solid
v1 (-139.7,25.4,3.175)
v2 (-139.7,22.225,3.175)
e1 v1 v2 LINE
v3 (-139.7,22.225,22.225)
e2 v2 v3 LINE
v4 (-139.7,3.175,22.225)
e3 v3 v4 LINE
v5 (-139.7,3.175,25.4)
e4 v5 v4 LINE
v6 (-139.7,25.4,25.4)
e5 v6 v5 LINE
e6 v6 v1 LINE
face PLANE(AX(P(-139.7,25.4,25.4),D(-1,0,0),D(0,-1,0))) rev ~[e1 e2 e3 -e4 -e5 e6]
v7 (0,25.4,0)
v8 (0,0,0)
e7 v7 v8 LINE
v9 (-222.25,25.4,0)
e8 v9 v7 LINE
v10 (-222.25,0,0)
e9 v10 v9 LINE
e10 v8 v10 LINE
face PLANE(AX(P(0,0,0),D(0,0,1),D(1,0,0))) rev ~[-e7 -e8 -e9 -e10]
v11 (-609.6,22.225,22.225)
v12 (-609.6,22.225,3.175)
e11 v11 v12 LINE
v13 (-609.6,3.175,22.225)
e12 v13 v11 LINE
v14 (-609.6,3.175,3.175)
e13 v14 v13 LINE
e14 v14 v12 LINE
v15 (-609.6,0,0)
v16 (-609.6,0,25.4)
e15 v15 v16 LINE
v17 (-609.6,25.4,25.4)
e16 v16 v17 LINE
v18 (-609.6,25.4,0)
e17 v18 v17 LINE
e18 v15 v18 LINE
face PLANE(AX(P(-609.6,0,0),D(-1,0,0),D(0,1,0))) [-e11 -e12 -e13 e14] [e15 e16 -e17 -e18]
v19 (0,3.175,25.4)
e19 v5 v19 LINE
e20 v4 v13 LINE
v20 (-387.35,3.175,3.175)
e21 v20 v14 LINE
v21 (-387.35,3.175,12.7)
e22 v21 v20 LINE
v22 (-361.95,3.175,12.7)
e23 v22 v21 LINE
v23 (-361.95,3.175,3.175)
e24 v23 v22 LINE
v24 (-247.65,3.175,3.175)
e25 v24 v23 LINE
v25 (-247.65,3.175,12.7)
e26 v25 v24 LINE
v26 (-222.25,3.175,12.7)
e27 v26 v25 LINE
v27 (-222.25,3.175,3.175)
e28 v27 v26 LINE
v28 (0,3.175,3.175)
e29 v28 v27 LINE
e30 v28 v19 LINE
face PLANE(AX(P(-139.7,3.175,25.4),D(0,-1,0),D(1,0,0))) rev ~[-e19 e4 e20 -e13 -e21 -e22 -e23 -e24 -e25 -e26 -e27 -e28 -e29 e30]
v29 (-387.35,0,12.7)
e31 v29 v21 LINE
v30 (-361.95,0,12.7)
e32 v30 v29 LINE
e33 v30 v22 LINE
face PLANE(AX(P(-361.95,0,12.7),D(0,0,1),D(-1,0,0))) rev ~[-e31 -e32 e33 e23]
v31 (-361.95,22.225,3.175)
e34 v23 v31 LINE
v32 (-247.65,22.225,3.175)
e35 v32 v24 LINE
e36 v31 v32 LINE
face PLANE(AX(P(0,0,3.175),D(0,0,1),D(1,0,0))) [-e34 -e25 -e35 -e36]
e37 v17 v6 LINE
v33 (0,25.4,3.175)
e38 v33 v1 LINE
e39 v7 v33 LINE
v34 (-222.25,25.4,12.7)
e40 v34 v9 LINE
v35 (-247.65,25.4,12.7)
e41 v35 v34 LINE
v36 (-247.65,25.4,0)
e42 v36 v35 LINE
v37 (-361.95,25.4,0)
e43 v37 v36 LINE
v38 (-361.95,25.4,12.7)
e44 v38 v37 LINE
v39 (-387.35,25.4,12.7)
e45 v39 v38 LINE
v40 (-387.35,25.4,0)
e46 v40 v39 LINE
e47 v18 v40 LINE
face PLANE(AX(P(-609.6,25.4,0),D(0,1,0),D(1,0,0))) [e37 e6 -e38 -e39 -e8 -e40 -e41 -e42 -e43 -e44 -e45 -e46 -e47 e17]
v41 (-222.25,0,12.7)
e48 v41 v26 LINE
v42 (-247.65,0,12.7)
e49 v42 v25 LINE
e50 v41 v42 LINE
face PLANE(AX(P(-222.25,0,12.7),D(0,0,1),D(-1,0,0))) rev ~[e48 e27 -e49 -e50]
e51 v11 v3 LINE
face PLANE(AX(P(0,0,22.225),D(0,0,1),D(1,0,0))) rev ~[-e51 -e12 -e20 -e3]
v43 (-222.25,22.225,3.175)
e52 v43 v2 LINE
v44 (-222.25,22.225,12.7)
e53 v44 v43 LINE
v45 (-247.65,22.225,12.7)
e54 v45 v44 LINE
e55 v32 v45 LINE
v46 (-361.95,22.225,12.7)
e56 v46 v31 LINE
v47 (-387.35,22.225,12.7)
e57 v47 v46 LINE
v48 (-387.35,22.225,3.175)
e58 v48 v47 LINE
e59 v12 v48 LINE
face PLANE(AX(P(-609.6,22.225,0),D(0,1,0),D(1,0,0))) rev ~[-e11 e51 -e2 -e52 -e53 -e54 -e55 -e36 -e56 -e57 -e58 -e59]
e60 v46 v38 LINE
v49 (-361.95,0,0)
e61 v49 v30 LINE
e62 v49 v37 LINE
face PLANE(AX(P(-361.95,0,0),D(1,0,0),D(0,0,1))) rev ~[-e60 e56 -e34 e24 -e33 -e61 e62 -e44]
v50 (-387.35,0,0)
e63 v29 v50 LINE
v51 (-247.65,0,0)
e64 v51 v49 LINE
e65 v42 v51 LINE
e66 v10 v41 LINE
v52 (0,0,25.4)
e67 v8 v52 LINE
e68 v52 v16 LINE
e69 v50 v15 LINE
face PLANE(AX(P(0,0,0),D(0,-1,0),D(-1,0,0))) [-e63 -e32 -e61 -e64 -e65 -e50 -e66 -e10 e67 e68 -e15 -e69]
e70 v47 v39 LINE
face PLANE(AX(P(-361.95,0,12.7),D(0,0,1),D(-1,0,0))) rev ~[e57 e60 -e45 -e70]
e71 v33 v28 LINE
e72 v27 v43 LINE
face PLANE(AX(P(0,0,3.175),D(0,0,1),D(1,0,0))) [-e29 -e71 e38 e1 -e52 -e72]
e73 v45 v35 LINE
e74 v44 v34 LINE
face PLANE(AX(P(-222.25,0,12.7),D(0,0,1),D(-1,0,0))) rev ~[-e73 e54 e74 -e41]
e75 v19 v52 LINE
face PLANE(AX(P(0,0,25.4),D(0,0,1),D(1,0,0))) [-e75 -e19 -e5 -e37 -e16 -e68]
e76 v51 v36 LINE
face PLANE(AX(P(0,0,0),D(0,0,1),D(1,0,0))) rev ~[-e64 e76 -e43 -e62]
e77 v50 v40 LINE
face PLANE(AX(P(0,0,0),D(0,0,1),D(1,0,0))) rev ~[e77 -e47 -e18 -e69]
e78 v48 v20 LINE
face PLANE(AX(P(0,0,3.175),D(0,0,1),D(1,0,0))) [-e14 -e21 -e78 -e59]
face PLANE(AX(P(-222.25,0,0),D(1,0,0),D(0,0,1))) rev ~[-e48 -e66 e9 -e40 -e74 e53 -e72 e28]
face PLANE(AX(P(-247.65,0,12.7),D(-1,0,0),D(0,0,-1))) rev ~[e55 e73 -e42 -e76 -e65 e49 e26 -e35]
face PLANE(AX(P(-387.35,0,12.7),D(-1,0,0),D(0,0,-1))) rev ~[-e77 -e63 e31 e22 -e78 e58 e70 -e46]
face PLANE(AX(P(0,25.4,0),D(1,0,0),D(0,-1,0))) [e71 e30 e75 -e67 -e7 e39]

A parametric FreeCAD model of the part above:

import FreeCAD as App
import Part
import Sketcher

V = App.Vector
Q = App.Units.Quantity


def faces_at(feature, points):
    """Names of the faces that lie closest to the given points."""
    faces = feature.Shape.Faces
    near = lambda p: min(range(len(faces)), key=lambda i: faces[i].distToShape(Part.Vertex(*p))[0])
    return sorted({f"Face{near(p) + 1}" for p in points})


def add_polygon(sketch, points):
    """Adds a closed chain of lines whose ends are joined by coincident constraints."""
    first, n = sketch.GeometryCount, len(points)
    for a, b in zip(points, points[1:] + points[:1]):
        sketch.addGeometry(Part.LineSegment(App.Vector(*a, 0), App.Vector(*b, 0)), False)
    for i in range(n):
        sketch.addConstraint(Sketcher.Constraint("Coincident", first + i, 2, first + (i + 1) % n, 1))

doc = App.newDocument("Part")
body = doc.addObject("PartDesign::Body", "Body")

sketch1 = body.newObject("Sketcher::SketchObject", "Sketch")
sketch1.AttachmentSupport = (doc.getObject("XY_Plane"), [""])
sketch1.MapMode = "FlatFace"
add_polygon(sketch1, [(-609.6, 0), (0, 0), (0, 25.4), (-609.6, 25.4)])
sketch1.addConstraint([
    Sketcher.Constraint("Horizontal", 0),
    Sketcher.Constraint("Vertical", 1),
    Sketcher.Constraint("Horizontal", 2),
    Sketcher.Constraint("Vertical", 3),
    Sketcher.Constraint("Coincident", 0, 2, -1, 1),
    Sketcher.Constraint("DistanceX", 0, 1, 0, 2, Q("24 in")),
    Sketcher.Constraint("DistanceY", 1, 1, 1, 2, Q("1 in")),
])
pad1 = body.newObject("PartDesign::Pad", "Pad")
pad1.Profile = sketch1
pad1.Length = Q("1 in")
doc.recompute()

thickness = body.newObject("PartDesign::Thickness", "Thickness")
thickness.Base = (pad1, faces_at(pad1, [(-609.6, 8.467, 16.933), (0, 16.933, 8.467)]))
thickness.Value = Q("0.125 in")
thickness.Reversed = True
thickness.Join = "Intersection"

sketch2 = body.newObject("Sketcher::SketchObject", "Sketch001")
sketch2.AttachmentSupport = (doc.getObject("XY_Plane"), [""])
sketch2.MapMode = "FlatFace"
sketch2.AttachmentOffset = App.Placement(V(0, 0, 1 * 25.4), App.Rotation())
add_polygon(sketch2, [(0, 3.175), (0, 25.4), (-139.7, 25.4), (-139.7, 3.175)])
sketch2.addConstraint([
    Sketcher.Constraint("Vertical", 0),
    Sketcher.Constraint("Horizontal", 1),
    Sketcher.Constraint("Vertical", 2),
    Sketcher.Constraint("Horizontal", 3),
    Sketcher.Constraint("PointOnObject", 0, 2, -2),
    Sketcher.Constraint("DistanceX", 1, 2, 1, 1, Q("5.5 in")),
    Sketcher.Constraint("DistanceY", 0, 1, 0, 2, Q("0.875 in")),
    Sketcher.Constraint("DistanceY", -1, 1, 0, 2, Q("1 in")),
])
pocket1 = body.newObject("PartDesign::Pocket", "Pocket")
pocket1.Profile = sketch2
pocket1.Length = Q("0.875 in")

sketch3 = body.newObject("Sketcher::SketchObject", "Sketch002")
sketch3.AttachmentSupport = (doc.getObject("XZ_Plane"), [""])
sketch3.MapMode = "FlatFace"
add_polygon(sketch3, [(-247.65, 12.7), (-247.65, 0), (-222.25, 0), (-222.25, 12.7)])
add_polygon(sketch3, [(-387.35, 12.7), (-387.35, 0), (-361.95, 0), (-361.95, 12.7)])
sketch3.addConstraint([
    Sketcher.Constraint("Vertical", 0),
    Sketcher.Constraint("Horizontal", 1),
    Sketcher.Constraint("Vertical", 2),
    Sketcher.Constraint("Horizontal", 3),
    Sketcher.Constraint("Vertical", 4),
    Sketcher.Constraint("Horizontal", 5),
    Sketcher.Constraint("Vertical", 6),
    Sketcher.Constraint("Horizontal", 7),
    Sketcher.Constraint("PointOnObject", 0, 2, -1),
    Sketcher.Constraint("PointOnObject", 4, 2, -1),
    Sketcher.Constraint("Horizontal", 3, 2, 6, 2),
    Sketcher.Constraint("Equal", 3, 5),
    Sketcher.Constraint("DistanceX", 1, 1, 1, 2, Q("1 in")),
    Sketcher.Constraint("DistanceY", 0, 2, 0, 1, Q("0.5 in")),
    Sketcher.Constraint("DistanceX", 5, 2, 0, 2, Q("4.5 in")),
    Sketcher.Constraint("DistanceX", 0, 2, -1, 1, Q("9.75 in")),
])
pocket2 = body.newObject("PartDesign::Pocket", "Pocket001")
pocket2.Profile = sketch3
pocket2.Type = "ThroughAll"

doc.recompute()
